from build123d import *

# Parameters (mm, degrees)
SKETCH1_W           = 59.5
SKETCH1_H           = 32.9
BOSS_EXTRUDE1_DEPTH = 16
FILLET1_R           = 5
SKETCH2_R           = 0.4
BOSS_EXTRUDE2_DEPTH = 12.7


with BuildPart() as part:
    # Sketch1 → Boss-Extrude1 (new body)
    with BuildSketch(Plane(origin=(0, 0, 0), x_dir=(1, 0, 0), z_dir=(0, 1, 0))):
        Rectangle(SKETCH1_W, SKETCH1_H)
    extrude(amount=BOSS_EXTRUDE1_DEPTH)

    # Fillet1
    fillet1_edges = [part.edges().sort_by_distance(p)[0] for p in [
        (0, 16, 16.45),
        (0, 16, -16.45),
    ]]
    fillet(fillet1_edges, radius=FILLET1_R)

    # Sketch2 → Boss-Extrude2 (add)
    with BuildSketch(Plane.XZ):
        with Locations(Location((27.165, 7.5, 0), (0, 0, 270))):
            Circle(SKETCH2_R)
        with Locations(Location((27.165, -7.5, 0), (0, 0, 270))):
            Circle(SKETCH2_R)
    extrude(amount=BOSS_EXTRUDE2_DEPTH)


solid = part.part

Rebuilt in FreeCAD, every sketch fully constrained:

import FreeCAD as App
import Part
import Sketcher

V = App.Vector


def edges_at(feature, points):
    """Names of the edges that pass closest to the given points."""
    edges = feature.Shape.Edges
    near = lambda p: min(range(len(edges)), key=lambda i: edges[i].distToShape(Part.Vertex(*p))[0])
    return sorted({f"Edge{near(p) + 1}" for p in points})

doc = App.newDocument("Part")
body = doc.addObject("PartDesign::Body", "Body")

sketch1 = body.newObject("Sketcher::SketchObject", "Sketch")
sketch1.AttachmentSupport = (doc.getObject("XZ_Plane"), [""])
sketch1.MapMode = "FlatFace"
sketch1.addGeometry([
    Part.LineSegment(V(-29.75, -16.45, 0), V(-29.75, 16.45, 0)),
    Part.LineSegment(V(-29.75, 16.45, 0), V(29.75, 16.45, 0)),
    Part.LineSegment(V(29.75, 16.45, 0), V(29.75, -16.45, 0)),
    Part.LineSegment(V(29.75, -16.45, 0), V(-29.75, -16.45, 0)),
], False)
sketch1.addConstraint([
    Sketcher.Constraint("Coincident", 0, 2, 1, 1),
    Sketcher.Constraint("Coincident", 1, 2, 2, 1),
    Sketcher.Constraint("Coincident", 2, 2, 3, 1),
    Sketcher.Constraint("Coincident", 3, 2, 0, 1),
    Sketcher.Constraint("Vertical", 0),
    Sketcher.Constraint("Horizontal", 1),
    Sketcher.Constraint("Vertical", 2),
    Sketcher.Constraint("Horizontal", 3),
    Sketcher.Constraint("Symmetric", 0, 2, 2, 2, -1, 1),
    Sketcher.Constraint("DistanceX", 1, 1, 1, 2, 59.5),
    Sketcher.Constraint("DistanceY", 0, 1, 0, 2, 32.9),
])
pad1 = body.newObject("PartDesign::Pad", "Pad")
pad1.Profile = sketch1
pad1.Length = 16
pad1.Reversed = True
doc.recompute()

fillet = body.newObject("PartDesign::Fillet", "Fillet")
fillet.Base = (pad1, edges_at(pad1, [(0, 16, 16.45), (0, 16, -16.45)]))
fillet.Radius = 5

sketch2 = body.newObject("Sketcher::SketchObject", "Sketch001")
sketch2.AttachmentSupport = (doc.getObject("XZ_Plane"), [""])
sketch2.MapMode = "FlatFace"
sketch2.addGeometry([
    Part.Circle(V(27.165, 7.5, 0), V(0, 0, 1), 0.4),
    Part.Circle(V(27.165, -7.5, 0), V(0, 0, 1), 0.4),
], False)
sketch2.addConstraint([
    Sketcher.Constraint("Equal", 0, 1),
    Sketcher.Constraint("Symmetric", 0, 3, 1, 3, -1),
    Sketcher.Constraint("Diameter", 0, 0.8),
    Sketcher.Constraint("DistanceY", 1, 3, 0, 3, 15.0),
    Sketcher.Constraint("DistanceX", -1, 1, 0, 3, 27.165),
])
pad2 = body.newObject("PartDesign::Pad", "Pad001")
pad2.Profile = sketch2
pad2.Length = 12.7

doc.recompute()
